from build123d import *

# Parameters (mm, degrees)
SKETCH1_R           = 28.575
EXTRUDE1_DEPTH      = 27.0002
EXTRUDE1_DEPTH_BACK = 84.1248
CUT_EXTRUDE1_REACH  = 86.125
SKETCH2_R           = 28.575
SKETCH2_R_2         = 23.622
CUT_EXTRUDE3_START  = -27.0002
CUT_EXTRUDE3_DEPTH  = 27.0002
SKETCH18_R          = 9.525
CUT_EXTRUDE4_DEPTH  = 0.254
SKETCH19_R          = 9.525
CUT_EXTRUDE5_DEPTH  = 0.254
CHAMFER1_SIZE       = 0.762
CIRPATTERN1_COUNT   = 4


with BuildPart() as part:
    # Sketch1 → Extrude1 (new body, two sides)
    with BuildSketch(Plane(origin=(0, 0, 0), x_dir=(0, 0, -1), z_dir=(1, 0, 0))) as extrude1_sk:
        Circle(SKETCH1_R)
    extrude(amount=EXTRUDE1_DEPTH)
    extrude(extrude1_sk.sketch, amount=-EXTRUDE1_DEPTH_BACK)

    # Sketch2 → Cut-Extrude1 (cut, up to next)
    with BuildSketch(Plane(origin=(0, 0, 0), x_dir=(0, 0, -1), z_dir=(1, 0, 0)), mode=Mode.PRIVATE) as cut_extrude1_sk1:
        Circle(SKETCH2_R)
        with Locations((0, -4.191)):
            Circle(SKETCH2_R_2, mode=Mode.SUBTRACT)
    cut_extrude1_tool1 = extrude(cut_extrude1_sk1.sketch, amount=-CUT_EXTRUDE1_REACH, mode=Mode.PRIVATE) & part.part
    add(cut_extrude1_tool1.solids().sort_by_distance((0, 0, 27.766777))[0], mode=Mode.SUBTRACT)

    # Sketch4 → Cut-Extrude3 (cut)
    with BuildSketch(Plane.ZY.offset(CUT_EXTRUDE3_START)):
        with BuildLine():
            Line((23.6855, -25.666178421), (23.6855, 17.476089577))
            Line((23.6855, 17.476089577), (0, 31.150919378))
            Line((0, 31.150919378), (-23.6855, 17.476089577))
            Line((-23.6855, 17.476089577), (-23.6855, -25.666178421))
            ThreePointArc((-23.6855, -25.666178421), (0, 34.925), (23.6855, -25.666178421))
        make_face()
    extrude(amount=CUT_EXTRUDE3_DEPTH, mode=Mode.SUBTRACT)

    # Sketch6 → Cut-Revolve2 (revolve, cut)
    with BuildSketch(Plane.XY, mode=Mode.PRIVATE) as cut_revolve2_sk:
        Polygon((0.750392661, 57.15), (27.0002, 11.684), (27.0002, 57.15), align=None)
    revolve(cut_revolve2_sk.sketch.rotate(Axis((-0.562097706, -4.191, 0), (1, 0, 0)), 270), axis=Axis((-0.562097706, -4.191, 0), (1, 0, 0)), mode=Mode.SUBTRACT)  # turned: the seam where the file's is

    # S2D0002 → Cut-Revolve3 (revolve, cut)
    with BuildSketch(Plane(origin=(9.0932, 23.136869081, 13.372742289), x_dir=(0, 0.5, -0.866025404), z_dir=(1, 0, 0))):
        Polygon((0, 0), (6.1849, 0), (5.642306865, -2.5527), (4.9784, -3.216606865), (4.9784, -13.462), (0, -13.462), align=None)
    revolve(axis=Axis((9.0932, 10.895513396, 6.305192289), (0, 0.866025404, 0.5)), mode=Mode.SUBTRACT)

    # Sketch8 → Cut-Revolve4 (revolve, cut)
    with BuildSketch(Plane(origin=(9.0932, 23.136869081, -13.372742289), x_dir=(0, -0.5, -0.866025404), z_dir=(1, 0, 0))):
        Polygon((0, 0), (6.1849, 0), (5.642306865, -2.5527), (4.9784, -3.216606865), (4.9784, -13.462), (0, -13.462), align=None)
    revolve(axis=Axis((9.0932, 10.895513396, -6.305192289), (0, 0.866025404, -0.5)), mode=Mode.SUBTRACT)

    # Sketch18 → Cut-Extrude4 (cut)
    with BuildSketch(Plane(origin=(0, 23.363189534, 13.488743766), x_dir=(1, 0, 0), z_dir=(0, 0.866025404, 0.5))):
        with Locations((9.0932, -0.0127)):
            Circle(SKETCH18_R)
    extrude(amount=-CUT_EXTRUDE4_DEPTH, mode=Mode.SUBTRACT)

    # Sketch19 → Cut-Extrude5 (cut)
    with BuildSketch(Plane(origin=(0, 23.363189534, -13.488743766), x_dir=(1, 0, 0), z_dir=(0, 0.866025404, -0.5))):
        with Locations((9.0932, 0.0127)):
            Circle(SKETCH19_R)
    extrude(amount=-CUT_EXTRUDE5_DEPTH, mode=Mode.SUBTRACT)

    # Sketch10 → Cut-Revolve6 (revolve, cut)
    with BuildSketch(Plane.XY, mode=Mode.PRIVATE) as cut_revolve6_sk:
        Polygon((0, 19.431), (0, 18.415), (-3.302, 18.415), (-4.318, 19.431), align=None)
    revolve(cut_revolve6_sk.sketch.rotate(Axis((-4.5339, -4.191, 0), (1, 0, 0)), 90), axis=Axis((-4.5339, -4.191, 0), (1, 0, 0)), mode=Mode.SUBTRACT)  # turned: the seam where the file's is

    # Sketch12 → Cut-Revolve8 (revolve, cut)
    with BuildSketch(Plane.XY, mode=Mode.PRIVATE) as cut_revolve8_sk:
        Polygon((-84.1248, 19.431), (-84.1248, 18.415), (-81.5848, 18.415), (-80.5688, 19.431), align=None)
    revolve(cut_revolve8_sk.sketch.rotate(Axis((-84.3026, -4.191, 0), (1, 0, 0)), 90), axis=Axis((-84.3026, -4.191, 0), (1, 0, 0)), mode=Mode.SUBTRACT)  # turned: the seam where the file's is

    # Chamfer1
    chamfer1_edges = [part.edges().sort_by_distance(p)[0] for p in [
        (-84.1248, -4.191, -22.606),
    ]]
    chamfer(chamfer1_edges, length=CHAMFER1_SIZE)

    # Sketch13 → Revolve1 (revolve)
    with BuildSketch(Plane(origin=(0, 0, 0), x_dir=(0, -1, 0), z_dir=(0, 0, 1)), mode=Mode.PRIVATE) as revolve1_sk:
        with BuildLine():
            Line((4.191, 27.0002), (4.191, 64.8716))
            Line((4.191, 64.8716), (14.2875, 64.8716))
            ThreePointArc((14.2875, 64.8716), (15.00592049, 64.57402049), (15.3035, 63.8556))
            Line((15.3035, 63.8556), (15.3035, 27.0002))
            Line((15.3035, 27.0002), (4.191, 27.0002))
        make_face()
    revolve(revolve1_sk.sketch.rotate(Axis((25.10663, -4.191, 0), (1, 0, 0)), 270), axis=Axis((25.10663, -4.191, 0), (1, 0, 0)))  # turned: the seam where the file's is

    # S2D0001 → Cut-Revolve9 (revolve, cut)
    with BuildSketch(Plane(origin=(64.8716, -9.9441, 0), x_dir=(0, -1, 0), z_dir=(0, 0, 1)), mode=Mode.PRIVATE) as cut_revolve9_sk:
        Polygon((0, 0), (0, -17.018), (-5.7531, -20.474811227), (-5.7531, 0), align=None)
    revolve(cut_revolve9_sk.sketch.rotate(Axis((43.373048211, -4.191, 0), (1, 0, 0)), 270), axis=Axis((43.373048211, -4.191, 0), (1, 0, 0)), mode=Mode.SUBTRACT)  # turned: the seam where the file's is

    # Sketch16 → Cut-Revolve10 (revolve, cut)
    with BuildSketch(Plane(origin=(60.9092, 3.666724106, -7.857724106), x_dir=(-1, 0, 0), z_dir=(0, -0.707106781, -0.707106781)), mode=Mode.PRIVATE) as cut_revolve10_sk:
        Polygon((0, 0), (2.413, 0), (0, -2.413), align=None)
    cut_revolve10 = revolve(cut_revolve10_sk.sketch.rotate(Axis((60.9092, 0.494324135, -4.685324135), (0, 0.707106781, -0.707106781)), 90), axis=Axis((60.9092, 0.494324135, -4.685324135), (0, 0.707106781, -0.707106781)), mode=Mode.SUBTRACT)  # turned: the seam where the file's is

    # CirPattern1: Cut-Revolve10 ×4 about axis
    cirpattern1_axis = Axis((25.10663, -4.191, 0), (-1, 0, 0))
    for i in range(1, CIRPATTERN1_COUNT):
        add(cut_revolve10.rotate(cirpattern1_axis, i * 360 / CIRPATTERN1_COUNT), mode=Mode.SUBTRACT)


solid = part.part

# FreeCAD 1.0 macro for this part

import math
import FreeCAD as App
import Part
import Sketcher
Q = App.Units.Quantity


def edges_at(feature, points):
    """Names of the edges that pass closest to the given points."""
    edges = feature.Shape.Edges
    near = lambda p: min(range(len(edges)), key=lambda i: edges[i].distToShape(Part.Vertex(*p))[0])
    return sorted({f"Edge{near(p) + 1}" for p in points})

doc = App.newDocument("Part")
body = doc.addObject("PartDesign::Body", "Body")

# Sketch on YZ plane
sketch1 = body.newObject("Sketcher::SketchObject", "Sketch")
sketch1.AttachmentSupport = (doc.getObject("YZ_Plane"), [""])
sketch1.MapMode = "FlatFace"
sketch1.addGeometry(Part.Circle(App.Vector(0, 0, 0), App.Vector(0, 0, 1), 29), False)
sketch1.addConstraint([
    Sketcher.Constraint("Coincident", 0, 3, -1, 1),
    Sketcher.Constraint("Diameter", 0, Q("2.25 in")),
])
pad1 = body.newObject("PartDesign::Pad", "Pad")
pad1.Profile = sketch1
pad1.Type = "TwoLengths"
pad1.Length = Q("1.063 in")
pad1.Length2 = Q("3.312 in")

# Sketch on YZ plane
sketch2 = body.newObject("Sketcher::SketchObject", "Sketch001")
sketch2.AttachmentSupport = (doc.getObject("YZ_Plane"), [""])
sketch2.MapMode = "FlatFace"
sketch2.addGeometry([
    Part.Circle(App.Vector(0, 0, 0), App.Vector(0, 0, 1), 29),
    Part.Circle(App.Vector(-4, 0, 0), App.Vector(0, 0, 1), 24),
], False)
sketch2.addConstraint([
    Sketcher.Constraint("Coincident", 0, 3, -1, 1),
    Sketcher.Constraint("PointOnObject", 1, 3, -1),
    Sketcher.Constraint("Diameter", 0, Q("2.25 in")),
    Sketcher.Constraint("Diameter", 1, Q("1.86 in")),
    Sketcher.Constraint("DistanceX", 1, 3, -1, 1, Q("0.165 in")),
])
pocket1 = body.newObject("PartDesign::Pocket", "Pocket")
pocket1.Profile = sketch2
pocket1.Type = "UpToFirst"

# Sketch on YZ plane
sketch3 = body.newObject("Sketcher::SketchObject", "Sketch002")
sketch3.AttachmentSupport = (doc.getObject("YZ_Plane"), [""])
sketch3.MapMode = "FlatFace"
sketch3.AttachmentOffset = App.Placement(App.Vector(0, 0, 1.063 * 25.4), App.Rotation())
sketch3.addGeometry([
    Part.LineSegment(App.Vector(17, 24, 0), App.Vector(-26, 24, 0)),  # 0
    Part.ArcOfCircle(Part.Circle(App.Vector(0, 0, 0), App.Vector(0, 0, 1), 35), math.radians(-137), math.radians(137)),  # 1
    Part.LineSegment(App.Vector(-26, -24, 0), App.Vector(17, -24, 0)),  # 2
    Part.LineSegment(App.Vector(17, -24, 0), App.Vector(31, 0, 0)),  # 3
    Part.LineSegment(App.Vector(31, 0, 0), App.Vector(17, 24, 0)),  # 4
], False)
sketch3.addConstraint([
    Sketcher.Constraint("Coincident", 0, 2, 1, 2),
    Sketcher.Constraint("Coincident", 1, 1, 2, 1),
    Sketcher.Constraint("Coincident", 2, 2, 3, 1),
    Sketcher.Constraint("Coincident", 3, 2, 4, 1),
    Sketcher.Constraint("Coincident", 4, 2, 0, 1),
    Sketcher.Constraint("Horizontal", 0),
    Sketcher.Constraint("Horizontal", 2),
    Sketcher.Constraint("Coincident", 1, 3, -1, 1),
    Sketcher.Constraint("Symmetric", 2, 2, 4, 2, -1),
    Sketcher.Constraint("PointOnObject", 3, 2, -1),
    Sketcher.Constraint("Angle", 3, Q("60 deg")),
    Sketcher.Constraint("Radius", 1, Q("1.375 in")),
    Sketcher.Constraint("DistanceY", 1, 1, 0, 2, Q("1.865 in")),
    Sketcher.Constraint("DistanceX", 0, 2, 0, 1, 43.142268),
])
pocket2 = body.newObject("PartDesign::Pocket", "Pocket001")
pocket2.Profile = sketch3
pocket2.Length = Q("1.063 in")

# Sketch on XY plane
sketch4 = body.newObject("Sketcher::SketchObject", "Sketch003")
sketch4.AttachmentSupport = (doc.getObject("XY_Plane"), [""])
sketch4.MapMode = "FlatFace"
sketch4.addGeometry([
    Part.LineSegment(App.Vector(1, 57, 0), App.Vector(27, 12, 0)),
    Part.LineSegment(App.Vector(27, 12, 0), App.Vector(27, 57, 0)),
    Part.LineSegment(App.Vector(27, 57, 0), App.Vector(1, 57, 0)),
], False)
sketch4.addGeometry(Part.LineSegment(App.Vector(1, -4, 0), App.Vector(27, -4, 0)), True)  # axis
sketch4.addConstraint([
    Sketcher.Constraint("Coincident", 0, 2, 1, 1),
    Sketcher.Constraint("Coincident", 1, 2, 2, 1),
    Sketcher.Constraint("Coincident", 2, 2, 0, 1),
    Sketcher.Constraint("Vertical", 1),
    Sketcher.Constraint("Horizontal", 2),
    Sketcher.Constraint("Horizontal", 3),
    Sketcher.Constraint("Vertical", 2, 2, 3, 1),
    Sketcher.Constraint("Vertical", 1, 2, 3, 2),
    Sketcher.Constraint("Angle", 0, Q("-60 deg")),
    Sketcher.Constraint("DistanceY", 1, 1, 1, 2, Q("1.79 in")),
    Sketcher.Constraint("DistanceY", -1, 1, 0, 2, Q("0.46 in")),
    Sketcher.Constraint("DistanceX", -1, 1, 0, 2, Q("1.063 in")),
    Sketcher.Constraint("DistanceY", 3, 1, -1, 1, Q("0.165 in")),
])
groove = body.newObject("PartDesign::Groove", "Groove")
groove.Profile = sketch4
groove.ReferenceAxis = (sketch4, ["Axis0"])
groove.Angle = 360

# Sketch on YZ plane
sketch5 = body.newObject("Sketcher::SketchObject", "Sketch004")
sketch5.AttachmentSupport = (doc.getObject("YZ_Plane"), [""])
sketch5.MapMode = "FlatFace"
sketch5.AttachmentOffset = App.Placement(App.Vector(0, 0, 0.358 * 25.4), App.Rotation())
sketch5.addGeometry([
    Part.LineSegment(App.Vector(26.2, 8, 0), App.Vector(23.1, 13.4, 0)),  # 0
    Part.LineSegment(App.Vector(23.1, 13.4, 0), App.Vector(11.5, 6.6, 0)),  # 1
    Part.LineSegment(App.Vector(11.5, 6.6, 0), App.Vector(14, 2.3, 0)),  # 2
    Part.LineSegment(App.Vector(14, 2.3, 0), App.Vector(22.8, 7.5, 0)),  # 3
    Part.LineSegment(App.Vector(22.8, 7.5, 0), App.Vector(23.7, 7.2, 0)),  # 4
    Part.LineSegment(App.Vector(23.7, 7.2, 0), App.Vector(26.2, 8, 0)),  # 5
], False)
sketch5.addGeometry(Part.LineSegment(App.Vector(11.5, 6.6, 0), App.Vector(23.1, 13.4, 0)), True)  # axis
sketch5.addConstraint([
    Sketcher.Constraint("Coincident", 0, 2, 1, 1),
    Sketcher.Constraint("Coincident", 1, 2, 2, 1),
    Sketcher.Constraint("Coincident", 2, 2, 3, 1),
    Sketcher.Constraint("Coincident", 3, 2, 4, 1),
    Sketcher.Constraint("Coincident", 4, 2, 5, 1),
    Sketcher.Constraint("Coincident", 5, 2, 0, 1),
    Sketcher.Constraint("Coincident", 6, 1, 1, 2),
    Sketcher.Constraint("Coincident", 6, 2, 0, 2),
    Sketcher.Constraint("Perpendicular", 0, 1),
    Sketcher.Constraint("Perpendicular", 1, 2),
    Sketcher.Constraint("Perpendicular", 2, 3),
    Sketcher.Constraint("Angle", 0, Q("120 deg")),
    Sketcher.Constraint("Angle", 4, Q("-15 deg")),
    Sketcher.Constraint("Angle", 5, Q("18 deg")),
    Sketcher.Constraint("Distance", 1, Q("0.53 in")),
    Sketcher.Constraint("Distance", 2, Q("0.196 in")),
    Sketcher.Constraint("Distance", 0, Q("0.2435 in")),
    Sketcher.Constraint("DistanceX", 4, 2, 5, 2, 2.482),
    Sketcher.Constraint("DistanceX", -1, 1, 0, 2, 23.136869),
    Sketcher.Constraint("DistanceY", -1, 1, 2, 2, 2.330321),
])
groove2 = body.newObject("PartDesign::Groove", "Groove001")
groove2.Profile = sketch5
groove2.ReferenceAxis = (sketch5, ["Axis0"])
groove2.Angle = 360

# Sketch on YZ plane
sketch6 = body.newObject("Sketcher::SketchObject", "Sketch005")
sketch6.AttachmentSupport = (doc.getObject("YZ_Plane"), [""])
sketch6.MapMode = "FlatFace"
sketch6.AttachmentOffset = App.Placement(App.Vector(0, 0, 0.358 * 25.4), App.Rotation())
sketch6.addGeometry([
    Part.LineSegment(App.Vector(20, -18.7, 0), App.Vector(23.1, -13.4, 0)),  # 0
    Part.LineSegment(App.Vector(23.1, -13.4, 0), App.Vector(11.5, -6.6, 0)),  # 1
    Part.LineSegment(App.Vector(11.5, -6.6, 0), App.Vector(9, -11, 0)),  # 2
    Part.LineSegment(App.Vector(9, -11, 0), App.Vector(17.9, -16.1, 0)),  # 3
    Part.LineSegment(App.Vector(17.9, -16.1, 0), App.Vector(18.1, -17, 0)),  # 4
    Part.LineSegment(App.Vector(18.1, -17, 0), App.Vector(20, -18.7, 0)),  # 5
], False)
sketch6.addGeometry(Part.LineSegment(App.Vector(11.5, -6.6, 0), App.Vector(23.1, -13.4, 0)), True)  # axis
sketch6.addConstraint([
    Sketcher.Constraint("Coincident", 0, 2, 1, 1),
    Sketcher.Constraint("Coincident", 1, 2, 2, 1),
    Sketcher.Constraint("Coincident", 2, 2, 3, 1),
    Sketcher.Constraint("Coincident", 3, 2, 4, 1),
    Sketcher.Constraint("Coincident", 4, 2, 5, 1),
    Sketcher.Constraint("Coincident", 5, 2, 0, 1),
    Sketcher.Constraint("Coincident", 6, 1, 1, 2),
    Sketcher.Constraint("Coincident", 6, 2, 0, 2),
    Sketcher.Constraint("Perpendicular", 0, 1),
    Sketcher.Constraint("Perpendicular", 1, 2),
    Sketcher.Constraint("Perpendicular", 2, 3),
    Sketcher.Constraint("Angle", 0, Q("60 deg")),
    Sketcher.Constraint("Angle", 4, Q("-75 deg")),
    Sketcher.Constraint("Angle", 5, Q("-42 deg")),
    Sketcher.Constraint("Distance", 1, Q("0.53 in")),
    Sketcher.Constraint("Distance", 2, Q("0.196 in")),
    Sketcher.Constraint("Distance", 0, Q("0.2435 in")),
    Sketcher.Constraint("Distance", 5, 2.609729),
    Sketcher.Constraint("DistanceX", -1, 1, 0, 2, 23.136869),
    Sketcher.Constraint("DistanceY", 3, 2, -1, 1, 16.07586),
])
groove3 = body.newObject("PartDesign::Groove", "Groove002")
groove3.Profile = sketch6
groove3.ReferenceAxis = (sketch6, ["Axis0"])
groove3.Angle = 360

# Sketch on an angled plane
sketch7 = body.newObject("Sketcher::SketchObject", "Sketch006")
sketch7.Placement = App.Placement(App.Vector(0, 23.36319, 13.488744), App.Rotation(App.Vector(1, 0, 0), App.Vector(0, 0.5, -0.866025404), App.Vector(0, 0.866025404, 0.5), "ZXY"))
sketch7.addGeometry(Part.Circle(App.Vector(9, 0, 0), App.Vector(0, 0, 1), 10), False)
sketch7.addConstraint([
    Sketcher.Constraint("Diameter", 0, Q("0.75 in")),
    Sketcher.Constraint("DistanceX", -1, 1, 0, 3, Q("0.358 in")),
    Sketcher.Constraint("DistanceY", 0, 3, -1, 1, Q("0.0005 in")),
])
pocket3 = body.newObject("PartDesign::Pocket", "Pocket002")
pocket3.Profile = sketch7
pocket3.Length = Q("0.01 in")

# Sketch on an angled plane
sketch8 = body.newObject("Sketcher::SketchObject", "Sketch007")
sketch8.Placement = App.Placement(App.Vector(0, 23.36319, -13.488744), App.Rotation(App.Vector(1, 0, 0), App.Vector(0, -0.5, -0.866025404), App.Vector(0, 0.866025404, -0.5), "ZXY"))
sketch8.addGeometry(Part.Circle(App.Vector(9, 0, 0), App.Vector(0, 0, 1), 10), False)
sketch8.addConstraint([
    Sketcher.Constraint("Diameter", 0, Q("0.75 in")),
    Sketcher.Constraint("DistanceX", -1, 1, 0, 3, Q("0.358 in")),
    Sketcher.Constraint("DistanceY", -1, 1, 0, 3, Q("0.0005 in")),
])
pocket4 = body.newObject("PartDesign::Pocket", "Pocket003")
pocket4.Profile = sketch8
pocket4.Length = Q("0.01 in")

# Sketch on XY plane
sketch9 = body.newObject("Sketcher::SketchObject", "Sketch008")
sketch9.AttachmentSupport = (doc.getObject("XY_Plane"), [""])
sketch9.MapMode = "FlatFace"
sketch9.addGeometry([
    Part.LineSegment(App.Vector(0, 18.4, 0), App.Vector(0, 19.4, 0)),
    Part.LineSegment(App.Vector(0, 19.4, 0), App.Vector(-4.3, 19.4, 0)),
    Part.LineSegment(App.Vector(-4.3, 19.4, 0), App.Vector(-3.3, 18.4, 0)),
    Part.LineSegment(App.Vector(-3.3, 18.4, 0), App.Vector(0, 18.4, 0)),
], False)
sketch9.addGeometry(Part.LineSegment(App.Vector(-4.3, -4.2, 0), App.Vector(0, -4.2, 0)), True)  # axis
sketch9.addConstraint([
    Sketcher.Constraint("Coincident", 0, 2, 1, 1),
    Sketcher.Constraint("Coincident", 1, 2, 2, 1),
    Sketcher.Constraint("Coincident", 2, 2, 3, 1),
    Sketcher.Constraint("Coincident", 3, 2, 0, 1),
    Sketcher.Constraint("Vertical", 0),
    Sketcher.Constraint("Horizontal", 1),
    Sketcher.Constraint("Horizontal", 3),
    Sketcher.Constraint("Horizontal", 4),
    Sketcher.Constraint("PointOnObject", 0, 2, -2),
    Sketcher.Constraint("PointOnObject", 4, 2, -2),
    Sketcher.Constraint("Vertical", 1, 2, 4, 1),
    Sketcher.Constraint("Angle", 2, Q("-45 deg")),
    Sketcher.Constraint("DistanceX", 1, 2, 1, 1, Q("0.17 in")),
    Sketcher.Constraint("DistanceX", 3, 1, 3, 2, Q("0.13 in")),
    Sketcher.Constraint("DistanceY", 4, 1, 2, 2, Q("0.89 in")),
    Sketcher.Constraint("DistanceY", -1, 1, 0, 2, Q("0.765 in")),
])
groove4 = body.newObject("PartDesign::Groove", "Groove003")
groove4.Profile = sketch9
groove4.ReferenceAxis = (sketch9, ["Axis0"])
groove4.Angle = 360

# Sketch on XY plane
sketch10 = body.newObject("Sketcher::SketchObject", "Sketch009")
sketch10.AttachmentSupport = (doc.getObject("XY_Plane"), [""])
sketch10.MapMode = "FlatFace"
sketch10.addGeometry([
    Part.LineSegment(App.Vector(-84.1, 19.4, 0), App.Vector(-84.1, 18.4, 0)),
    Part.LineSegment(App.Vector(-84.1, 18.4, 0), App.Vector(-81.6, 18.4, 0)),
    Part.LineSegment(App.Vector(-81.6, 18.4, 0), App.Vector(-80.6, 19.4, 0)),
    Part.LineSegment(App.Vector(-80.6, 19.4, 0), App.Vector(-84.1, 19.4, 0)),
], False)
sketch10.addGeometry(Part.LineSegment(App.Vector(-84.1, -4.2, 0), App.Vector(-80.6, -4.2, 0)), True)  # axis
sketch10.addConstraint([
    Sketcher.Constraint("Coincident", 0, 2, 1, 1),
    Sketcher.Constraint("Coincident", 1, 2, 2, 1),
    Sketcher.Constraint("Coincident", 2, 2, 3, 1),
    Sketcher.Constraint("Coincident", 3, 2, 0, 1),
    Sketcher.Constraint("Vertical", 0),
    Sketcher.Constraint("Horizontal", 1),
    Sketcher.Constraint("Horizontal", 3),
    Sketcher.Constraint("Horizontal", 4),
    Sketcher.Constraint("Vertical", 3, 2, 4, 1),
    Sketcher.Constraint("Vertical", 2, 2, 4, 2),
    Sketcher.Constraint("DistanceX", 1, 1, 1, 2, Q("0.1 in")),
    Sketcher.Constraint("Angle", 2, Q("45 deg")),
    Sketcher.Constraint("DistanceX", 3, 2, 3, 1, Q("0.14 in")),
    Sketcher.Constraint("DistanceY", 4, 1, 0, 2, Q("0.89 in")),
    Sketcher.Constraint("DistanceX", 0, 2, -1, 1, Q("3.312 in")),
    Sketcher.Constraint("DistanceY", -1, 1, 0, 2, Q("0.725 in")),
])
groove5 = body.newObject("PartDesign::Groove", "Groove004")
groove5.Profile = sketch10
groove5.ReferenceAxis = (sketch10, ["Axis0"])
groove5.Angle = 360
doc.recompute()

chamfer = body.newObject("PartDesign::Chamfer", "Chamfer")
chamfer.Base = (groove5, edges_at(groove5, [(-84.125, -4.191, -22.606)]))
chamfer.Size = Q("0.03 in")

# Sketch on XY plane
sketch11 = body.newObject("Sketcher::SketchObject", "Sketch010")
sketch11.AttachmentSupport = (doc.getObject("XY_Plane"), [""])
sketch11.MapMode = "FlatFace"
sketch11.addGeometry([
    Part.LineSegment(App.Vector(64.9, -4.2, 0), App.Vector(27, -4.2, 0)),  # 0
    Part.LineSegment(App.Vector(27, -4.2, 0), App.Vector(27, -15.3, 0)),  # 1
    Part.LineSegment(App.Vector(27, -15.3, 0), App.Vector(63.9, -15.3, 0)),  # 2
    Part.ArcOfCircle(Part.Circle(App.Vector(63.9, -14.3, 0), App.Vector(0, 0, 1), 1), math.radians(-90), math.radians(0)),  # 3
    Part.LineSegment(App.Vector(64.9, -14.3, 0), App.Vector(64.9, -4.2, 0)),  # 4
], False)
sketch11.addGeometry(Part.LineSegment(App.Vector(27, -4.2, 0), App.Vector(64.9, -4.2, 0)), True)  # axis
sketch11.addConstraint([
    Sketcher.Constraint("Coincident", 0, 2, 1, 1),
    Sketcher.Constraint("Coincident", 1, 2, 2, 1),
    Sketcher.Constraint("Tangent", 2, 2, 3, 1),
    Sketcher.Constraint("Tangent", 3, 2, 4, 1),
    Sketcher.Constraint("Coincident", 4, 2, 0, 1),
    Sketcher.Constraint("Horizontal", 0),
    Sketcher.Constraint("Vertical", 1),
    Sketcher.Constraint("Horizontal", 2),
    Sketcher.Constraint("Vertical", 4),
    Sketcher.Constraint("Horizontal", 5),
    Sketcher.Constraint("Coincident", 5, 1, 0, 2),
    Sketcher.Constraint("Vertical", 3, 2, 5, 2),
    Sketcher.Constraint("Radius", 3, Q("0.04 in")),
    Sketcher.Constraint("DistanceX", 0, 2, 0, 1, Q("1.491 in")),
    Sketcher.Constraint("DistanceY", 1, 2, 1, 1, Q("0.4375 in")),
    Sketcher.Constraint("DistanceX", -1, 1, 3, 3, Q("2.514 in")),
    Sketcher.Constraint("DistanceY", 3, 3, -1, 1, Q("0.5625 in")),
])
revolution = body.newObject("PartDesign::Revolution", "Revolution")
revolution.Profile = sketch11
revolution.ReferenceAxis = (sketch11, ["Axis0"])
revolution.Angle = 360

# Sketch on XY plane
sketch12 = body.newObject("Sketcher::SketchObject", "Sketch011")
sketch12.AttachmentSupport = (doc.getObject("XY_Plane"), [""])
sketch12.MapMode = "FlatFace"
sketch12.addGeometry([
    Part.LineSegment(App.Vector(48, -10, 0), App.Vector(65, -10, 0)),
    Part.LineSegment(App.Vector(65, -10, 0), App.Vector(65, -4, 0)),
    Part.LineSegment(App.Vector(65, -4, 0), App.Vector(44, -4, 0)),
    Part.LineSegment(App.Vector(44, -4, 0), App.Vector(48, -10, 0)),
], False)
sketch12.addGeometry(Part.LineSegment(App.Vector(44, -4, 0), App.Vector(65, -4, 0)), True)  # axis
sketch12.addConstraint([
    Sketcher.Constraint("Coincident", 0, 2, 1, 1),
    Sketcher.Constraint("Coincident", 1, 2, 2, 1),
    Sketcher.Constraint("Coincident", 2, 2, 3, 1),
    Sketcher.Constraint("Coincident", 3, 2, 0, 1),
    Sketcher.Constraint("Horizontal", 0),
    Sketcher.Constraint("Vertical", 1),
    Sketcher.Constraint("Horizontal", 2),
    Sketcher.Constraint("Horizontal", 4),
    Sketcher.Constraint("Coincident", 4, 1, 2, 2),
    Sketcher.Constraint("Vertical", 0, 2, 4, 2),
    Sketcher.Constraint("Angle", 3, Q("-59 deg")),
    Sketcher.Constraint("DistanceX", 0, 1, 0, 2, Q("0.67 in")),
    Sketcher.Constraint("DistanceY", 1, 1, 1, 2, Q("0.2265 in")),
    Sketcher.Constraint("DistanceX", -1, 1, 0, 2, Q("2.554 in")),
    Sketcher.Constraint("DistanceY", 1, 2, -1, 1, Q("0.165 in")),
])
groove6 = body.newObject("PartDesign::Groove", "Groove005")
groove6.Profile = sketch12
groove6.ReferenceAxis = (sketch12, ["Axis0"])
groove6.Angle = 360

# Sketch on an angled plane
sketch13 = body.newObject("Sketcher::SketchObject", "Sketch012")
sketch13.Placement = App.Placement(App.Vector(60.9092, 3.666724, -7.857724), App.Rotation(App.Vector(-1, 0, 0), App.Vector(0, 0.707106781, -0.707106781), App.Vector(0, -0.707106781, -0.707106781), "ZXY"))
sketch13.addGeometry([
    Part.LineSegment(App.Vector(2.4, 0, 0), App.Vector(0, 0, 0)),
    Part.LineSegment(App.Vector(0, 0, 0), App.Vector(0, -2.4, 0)),
    Part.LineSegment(App.Vector(0, -2.4, 0), App.Vector(2.4, 0, 0)),
], False)
sketch13.addConstraint([
    Sketcher.Constraint("Coincident", 0, 2, 1, 1),
    Sketcher.Constraint("Coincident", 1, 2, 2, 1),
    Sketcher.Constraint("Coincident", 2, 2, 0, 1),
    Sketcher.Constraint("Horizontal", 0),
    Sketcher.Constraint("Vertical", 1),
    Sketcher.Constraint("Coincident", 0, 2, -1, 1),
    Sketcher.Constraint("Equal", 0, 1),
    Sketcher.Constraint("DistanceX", 0, 2, 0, 1, Q("0.095 in")),
])
groove7 = body.newObject("PartDesign::Groove", "Groove006")
groove7.Profile = sketch13
groove7.ReferenceAxis = (sketch13, ["V_Axis"])
groove7.Angle = 360
doc.recompute()

datumline = body.newObject("PartDesign::Line", "DatumLine")
datumline.Placement = App.Placement(App.Vector(0, -4.191, 0), App.Rotation(App.Vector(0, 0, 1), App.Vector(-1, 0, 0)))
polarpattern = body.newObject("PartDesign::PolarPattern", "PolarPattern")
polarpattern.Originals = [groove7]
polarpattern.Axis = (datumline, [""])
polarpattern.Angle = 360
polarpattern.Occurrences = 4
body.Tip = polarpattern

doc.recompute()
